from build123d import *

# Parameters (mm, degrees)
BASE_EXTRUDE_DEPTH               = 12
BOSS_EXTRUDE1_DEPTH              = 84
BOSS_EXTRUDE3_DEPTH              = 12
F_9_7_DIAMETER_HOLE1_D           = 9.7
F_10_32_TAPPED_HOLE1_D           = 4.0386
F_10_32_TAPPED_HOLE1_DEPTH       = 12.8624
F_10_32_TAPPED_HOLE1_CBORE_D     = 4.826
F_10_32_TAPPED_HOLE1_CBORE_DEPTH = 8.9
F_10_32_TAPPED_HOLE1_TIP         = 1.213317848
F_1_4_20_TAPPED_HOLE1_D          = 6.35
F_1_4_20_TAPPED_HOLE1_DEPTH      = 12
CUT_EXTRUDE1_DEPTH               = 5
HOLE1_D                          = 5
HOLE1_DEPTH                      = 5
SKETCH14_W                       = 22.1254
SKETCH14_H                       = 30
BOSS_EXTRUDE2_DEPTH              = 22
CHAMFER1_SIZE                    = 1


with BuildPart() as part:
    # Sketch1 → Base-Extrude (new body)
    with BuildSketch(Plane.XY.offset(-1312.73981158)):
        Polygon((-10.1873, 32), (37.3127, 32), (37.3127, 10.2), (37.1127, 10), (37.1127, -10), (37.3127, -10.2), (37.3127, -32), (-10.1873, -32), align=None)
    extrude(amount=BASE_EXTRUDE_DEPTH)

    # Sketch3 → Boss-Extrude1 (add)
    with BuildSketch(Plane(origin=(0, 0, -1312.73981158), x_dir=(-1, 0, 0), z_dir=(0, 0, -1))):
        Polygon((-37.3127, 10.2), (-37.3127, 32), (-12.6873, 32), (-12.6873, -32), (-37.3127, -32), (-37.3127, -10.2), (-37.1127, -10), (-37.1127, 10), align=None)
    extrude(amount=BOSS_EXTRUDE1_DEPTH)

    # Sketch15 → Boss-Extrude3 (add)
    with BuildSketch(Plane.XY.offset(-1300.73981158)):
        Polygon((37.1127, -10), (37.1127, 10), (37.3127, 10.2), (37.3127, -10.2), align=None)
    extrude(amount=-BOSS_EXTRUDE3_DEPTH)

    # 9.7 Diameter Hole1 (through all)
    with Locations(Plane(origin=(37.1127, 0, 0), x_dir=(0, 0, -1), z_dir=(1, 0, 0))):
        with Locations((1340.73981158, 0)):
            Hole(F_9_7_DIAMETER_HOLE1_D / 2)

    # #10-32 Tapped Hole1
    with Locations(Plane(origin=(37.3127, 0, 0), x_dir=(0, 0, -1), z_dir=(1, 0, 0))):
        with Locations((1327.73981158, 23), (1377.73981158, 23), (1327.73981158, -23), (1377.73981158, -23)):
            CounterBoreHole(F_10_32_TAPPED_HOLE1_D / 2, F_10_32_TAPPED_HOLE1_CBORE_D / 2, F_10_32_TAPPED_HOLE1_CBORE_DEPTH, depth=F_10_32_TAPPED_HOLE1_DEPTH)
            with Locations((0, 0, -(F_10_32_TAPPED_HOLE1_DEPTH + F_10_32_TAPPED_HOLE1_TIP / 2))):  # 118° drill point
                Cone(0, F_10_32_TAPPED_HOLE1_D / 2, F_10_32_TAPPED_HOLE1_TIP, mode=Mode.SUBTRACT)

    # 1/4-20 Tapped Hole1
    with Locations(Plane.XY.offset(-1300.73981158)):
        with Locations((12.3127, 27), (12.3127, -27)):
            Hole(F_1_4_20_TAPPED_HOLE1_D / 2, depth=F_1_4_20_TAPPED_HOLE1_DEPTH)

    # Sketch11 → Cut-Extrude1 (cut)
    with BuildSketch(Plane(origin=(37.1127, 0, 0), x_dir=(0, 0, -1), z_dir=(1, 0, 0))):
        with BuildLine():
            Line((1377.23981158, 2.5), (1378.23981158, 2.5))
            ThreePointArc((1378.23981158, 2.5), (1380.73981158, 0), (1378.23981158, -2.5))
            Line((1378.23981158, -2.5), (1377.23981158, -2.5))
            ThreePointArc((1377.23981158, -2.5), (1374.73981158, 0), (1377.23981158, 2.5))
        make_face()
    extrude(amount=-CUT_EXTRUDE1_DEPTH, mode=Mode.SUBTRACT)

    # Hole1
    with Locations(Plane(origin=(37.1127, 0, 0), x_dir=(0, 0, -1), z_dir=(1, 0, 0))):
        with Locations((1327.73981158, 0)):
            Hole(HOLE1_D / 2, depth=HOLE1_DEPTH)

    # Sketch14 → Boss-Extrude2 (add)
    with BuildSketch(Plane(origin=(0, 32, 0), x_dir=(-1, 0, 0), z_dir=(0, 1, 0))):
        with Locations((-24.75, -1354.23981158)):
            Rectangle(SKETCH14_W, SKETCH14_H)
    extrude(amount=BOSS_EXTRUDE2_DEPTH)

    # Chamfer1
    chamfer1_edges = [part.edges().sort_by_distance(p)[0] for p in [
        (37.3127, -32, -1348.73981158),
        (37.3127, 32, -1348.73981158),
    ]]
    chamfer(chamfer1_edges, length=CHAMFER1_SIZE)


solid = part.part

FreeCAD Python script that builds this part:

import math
import FreeCAD as App
import Part
import Sketcher
from FreeCAD import Vector
Q = App.Units.Quantity


def edges_at(feature, points):
    """Names of the edges that pass closest to the given points."""
    edges = feature.Shape.Edges
    near = lambda p: min(range(len(edges)), key=lambda i: edges[i].distToShape(Part.Vertex(*p))[0])
    return sorted({f"Edge{near(p) + 1}" for p in points})

doc = App.newDocument("Part")
params = doc.addObject("Spreadsheet::Sheet", "Params")
for row, (alias, value) in enumerate([
    ("sketch1_height", "64 mm"),
    ("sketch1_height2", "20 mm"),
    ("sketch1_width", "47.5 mm"),
    ("sketch1_height3", "21.8 mm"),
    ("pad1_length", "12 mm"),
    ("sketch2_height", "20 mm"),
    ("sketch2_height2", "64 mm"),
    ("sketch2_height3", "21.8 mm"),
    ("pad2_length", "84 mm"),
    ("sketch3_height", "20 mm"),
    ("sketch3_height2", "20.4 mm"),
    ("pad3_length", "12 mm"),
    ("sketch4_diameter", "9.7 mm"),
    ("hole_diameter", "9.7 mm"),
    ("hole2_diameter", "4.0386 mm"),
    ("hole2_depth", "12.8624 mm"),
    ("hole2_cbore_diameter", "4.826 mm"),
    ("hole2_cbore_depth", "8.9 mm"),
    ("sketch6_diameter", "6.35 mm"),
    ("hole3_diameter", "6.35 mm"),
    ("hole3_depth", "12 mm"),
    ("sketch7_radius", "2.5 mm"),
    ("sketch7_height", "1 mm"),
    ("pocket1_length", "5 mm"),
    ("sketch8_diameter", "5 mm"),
    ("hole4_diameter", "5 mm"),
    ("hole4_depth", "5 mm"),
    ("sketch9_height", "30 mm"),
    ("pad4_length", "22 mm"),
    ("chamfer_size", "1 mm"),
], start=1):
    params.set(f"A{row}", alias)
    params.set(f"B{row}", "=" + value)
    params.setAlias(f"B{row}", alias)

body = doc.addObject("PartDesign::Body", "Body")

sketch1 = doc.addObject("Sketcher::SketchObject", "Sketch")
body.addObject(sketch1)
sketch1.AttachmentSupport = (doc.XY_Plane, [""])
sketch1.MapMode = "FlatFace"
sketch1.AttachmentOffset = App.Placement(Vector(0, 0, -1312.739812), App.Rotation())
sketch1.addGeometry(Part.LineSegment(Vector(37.31, 32, 0), Vector(-10.19, 32, 0)), False)
sketch1.addGeometry(Part.LineSegment(Vector(-10.19, 32, 0), Vector(-10.19, -32, 0)), False)
sketch1.addGeometry(Part.LineSegment(Vector(-10.19, -32, 0), Vector(37.31, -32, 0)), False)
sketch1.addGeometry(Part.LineSegment(Vector(37.31, -32, 0), Vector(37.31, -10.2, 0)), False)
sketch1.addGeometry(Part.LineSegment(Vector(37.31, -10.2, 0), Vector(37.11, -10, 0)), False)
sketch1.addGeometry(Part.LineSegment(Vector(37.11, -10, 0), Vector(37.11, 10, 0)), False)
sketch1.addGeometry(Part.LineSegment(Vector(37.11, 10, 0), Vector(37.31, 10.2, 0)), False)
sketch1.addGeometry(Part.LineSegment(Vector(37.31, 10.2, 0), Vector(37.31, 32, 0)), False)
sketch1.addConstraint(Sketcher.Constraint("Coincident", 0, 2, 1, 1))
sketch1.addConstraint(Sketcher.Constraint("Coincident", 1, 2, 2, 1))
sketch1.addConstraint(Sketcher.Constraint("Coincident", 2, 2, 3, 1))
sketch1.addConstraint(Sketcher.Constraint("Coincident", 3, 2, 4, 1))
sketch1.addConstraint(Sketcher.Constraint("Coincident", 4, 2, 5, 1))
sketch1.addConstraint(Sketcher.Constraint("Coincident", 5, 2, 6, 1))
sketch1.addConstraint(Sketcher.Constraint("Coincident", 6, 2, 7, 1))
sketch1.addConstraint(Sketcher.Constraint("Coincident", 7, 2, 0, 1))
sketch1.addConstraint(Sketcher.Constraint("Horizontal", 0))
sketch1.addConstraint(Sketcher.Constraint("Vertical", 1))
sketch1.addConstraint(Sketcher.Constraint("Horizontal", 2))
sketch1.addConstraint(Sketcher.Constraint("Vertical", 3))
sketch1.addConstraint(Sketcher.Constraint("Vertical", 5))
sketch1.addConstraint(Sketcher.Constraint("Vertical", 7))
sketch1.addConstraint(Sketcher.Constraint("Symmetric", 3, 2, 6, 2, -1))
sketch1.addConstraint(Sketcher.Constraint("Perpendicular", 4, 6))
sketch1.addConstraint(Sketcher.Constraint("Equal", 3, 7))
sketch1.addConstraint(Sketcher.Constraint("Equal", 4, 6))
sketch1.addConstraint(Sketcher.Constraint("DistanceY", 1, 2, 1, 1, Q("64 mm")))
sketch1.addConstraint(Sketcher.Constraint("DistanceY", 5, 1, 5, 2, Q("20 mm")))
sketch1.addConstraint(Sketcher.Constraint("DistanceX", 0, 2, 0, 1, Q("47.5 mm")))
sketch1.addConstraint(Sketcher.Constraint("DistanceY", 3, 1, 3, 2, Q("21.8 mm")))
sketch1.addConstraint(Sketcher.Constraint("DistanceX", 0, 2, -1, 1, Q("10.1873 mm")))
sketch1.setExpression("Constraints[18]", "Params.sketch1_height")
sketch1.setExpression("Constraints[19]", "Params.sketch1_height2")
sketch1.setExpression("Constraints[20]", "Params.sketch1_width")
sketch1.setExpression("Constraints[21]", "Params.sketch1_height3")
pad1 = doc.addObject("PartDesign::Pad", "Pad")
body.addObject(pad1)
pad1.Profile = sketch1
pad1.setExpression("Length", "Params.pad1_length")

sketch2 = doc.addObject("Sketcher::SketchObject", "Sketch001")
body.addObject(sketch2)
sketch2.AttachmentSupport = (doc.XY_Plane, [""])
sketch2.MapMode = "FlatFace"
sketch2.AttachmentOffset = App.Placement(Vector(0, 0, -1312.739812), App.Rotation())
sketch2.addGeometry(Part.LineSegment(Vector(37.31, 32, 0), Vector(37.31, 10.2, 0)), False)
sketch2.addGeometry(Part.LineSegment(Vector(37.31, 10.2, 0), Vector(37.11, 10, 0)), False)
sketch2.addGeometry(Part.LineSegment(Vector(37.11, 10, 0), Vector(37.11, -10, 0)), False)
sketch2.addGeometry(Part.LineSegment(Vector(37.11, -10, 0), Vector(37.31, -10.2, 0)), False)
sketch2.addGeometry(Part.LineSegment(Vector(37.31, -10.2, 0), Vector(37.31, -32, 0)), False)
sketch2.addGeometry(Part.LineSegment(Vector(37.31, -32, 0), Vector(12.69, -32, 0)), False)
sketch2.addGeometry(Part.LineSegment(Vector(12.69, -32, 0), Vector(12.69, 32, 0)), False)
sketch2.addGeometry(Part.LineSegment(Vector(12.69, 32, 0), Vector(37.31, 32, 0)), False)
sketch2.addConstraint(Sketcher.Constraint("Coincident", 0, 2, 1, 1))
sketch2.addConstraint(Sketcher.Constraint("Coincident", 1, 2, 2, 1))
sketch2.addConstraint(Sketcher.Constraint("Coincident", 2, 2, 3, 1))
sketch2.addConstraint(Sketcher.Constraint("Coincident", 3, 2, 4, 1))
sketch2.addConstraint(Sketcher.Constraint("Coincident", 4, 2, 5, 1))
sketch2.addConstraint(Sketcher.Constraint("Coincident", 5, 2, 6, 1))
sketch2.addConstraint(Sketcher.Constraint("Coincident", 6, 2, 7, 1))
sketch2.addConstraint(Sketcher.Constraint("Coincident", 7, 2, 0, 1))
sketch2.addConstraint(Sketcher.Constraint("Vertical", 0))
sketch2.addConstraint(Sketcher.Constraint("Vertical", 2))
sketch2.addConstraint(Sketcher.Constraint("Vertical", 4))
sketch2.addConstraint(Sketcher.Constraint("Horizontal", 5))
sketch2.addConstraint(Sketcher.Constraint("Vertical", 6))
sketch2.addConstraint(Sketcher.Constraint("Horizontal", 7))
sketch2.addConstraint(Sketcher.Constraint("Symmetric", 0, 2, 3, 2, -1))
sketch2.addConstraint(Sketcher.Constraint("Perpendicular", 1, 3))
sketch2.addConstraint(Sketcher.Constraint("Equal", 0, 4))
sketch2.addConstraint(Sketcher.Constraint("Equal", 1, 3))
sketch2.addConstraint(Sketcher.Constraint("DistanceY", 2, 2, 2, 1, Q("20 mm")))
sketch2.addConstraint(Sketcher.Constraint("DistanceY", 6, 1, 6, 2, Q("64 mm")))
sketch2.addConstraint(Sketcher.Constraint("DistanceY", 0, 2, 0, 1, Q("21.8 mm")))
sketch2.addConstraint(Sketcher.Constraint("DistanceX", 5, 2, 5, 1, Q("24.6254 mm")))
sketch2.addConstraint(Sketcher.Constraint("DistanceX", -1, 1, 0, 2, Q("37.3127 mm")))
sketch2.setExpression("Constraints[18]", "Params.sketch2_height")
sketch2.setExpression("Constraints[19]", "Params.sketch2_height2")
sketch2.setExpression("Constraints[20]", "Params.sketch2_height3")
pad2 = doc.addObject("PartDesign::Pad", "Pad001")
body.addObject(pad2)
pad2.Profile = sketch2
pad2.setExpression("Length", "Params.pad2_length")
pad2.Reversed = True

sketch3 = doc.addObject("Sketcher::SketchObject", "Sketch002")
body.addObject(sketch3)
sketch3.AttachmentSupport = (doc.XY_Plane, [""])
sketch3.MapMode = "FlatFace"
sketch3.AttachmentOffset = App.Placement(Vector(0, 0, -1300.739812), App.Rotation())
sketch3.addGeometry(Part.LineSegment(Vector(37.11, 10, 0), Vector(37.11, -10, 0)), False)
sketch3.addGeometry(Part.LineSegment(Vector(37.11, -10, 0), Vector(37.31, -10.2, 0)), False)
sketch3.addGeometry(Part.LineSegment(Vector(37.31, -10.2, 0), Vector(37.31, 10.2, 0)), False)
sketch3.addGeometry(Part.LineSegment(Vector(37.31, 10.2, 0), Vector(37.11, 10, 0)), False)
sketch3.addConstraint(Sketcher.Constraint("Coincident", 0, 2, 1, 1))
sketch3.addConstraint(Sketcher.Constraint("Coincident", 1, 2, 2, 1))
sketch3.addConstraint(Sketcher.Constraint("Coincident", 2, 2, 3, 1))
sketch3.addConstraint(Sketcher.Constraint("Coincident", 3, 2, 0, 1))
sketch3.addConstraint(Sketcher.Constraint("Vertical", 0))
sketch3.addConstraint(Sketcher.Constraint("Vertical", 2))
sketch3.addConstraint(Sketcher.Constraint("Perpendicular", 1, 3))
sketch3.addConstraint(Sketcher.Constraint("Equal", 1, 3))
sketch3.addConstraint(Sketcher.Constraint("DistanceY", 0, 2, 0, 1, Q("20 mm")))
sketch3.addConstraint(Sketcher.Constraint("DistanceY", 2, 1, 2, 2, Q("20.4 mm")))
sketch3.addConstraint(Sketcher.Constraint("DistanceY", 0, 2, -1, 1, Q("10 mm")))
sketch3.addConstraint(Sketcher.Constraint("DistanceX", -1, 1, 0, 2, Q("37.1127 mm")))
sketch3.setExpression("Constraints[8]", "Params.sketch3_height")
sketch3.setExpression("Constraints[9]", "Params.sketch3_height2")
pad3 = doc.addObject("PartDesign::Pad", "Pad002")
body.addObject(pad3)
pad3.Profile = sketch3
pad3.setExpression("Length", "Params.pad3_length")
pad3.Reversed = True

sketch4 = doc.addObject("Sketcher::SketchObject", "Sketch003")
body.addObject(sketch4)
sketch4.AttachmentSupport = (doc.YZ_Plane, [""])
sketch4.MapMode = "FlatFace"
sketch4.AttachmentOffset = App.Placement(Vector(0, 0, 37.1127), App.Rotation())
sketch4.addGeometry(Part.Circle(Vector(0, -1340.7, 0), Vector(0, 0, 1), 4.8), False)
sketch4.addConstraint(Sketcher.Constraint("PointOnObject", 0, 3, -2))
sketch4.addConstraint(Sketcher.Constraint("Diameter", 0, Q("9.7 mm")))
sketch4.addConstraint(Sketcher.Constraint("DistanceY", 0, 3, -1, 1, Q("1340.739812 mm")))
sketch4.setExpression("Constraints[1]", "Params.sketch4_diameter")
doc.recompute()
hole = doc.addObject("PartDesign::Hole", "Hole")
body.addObject(hole)
hole.Profile = sketch4
hole.ThreadType = "None"
hole.setExpression("Diameter", "Params.hole_diameter")
hole.DepthType = "ThroughAll"

sketch5 = doc.addObject("Sketcher::SketchObject", "Sketch004")
body.addObject(sketch5)
sketch5.AttachmentSupport = (doc.YZ_Plane, [""])
sketch5.MapMode = "FlatFace"
sketch5.AttachmentOffset = App.Placement(Vector(0, 0, 37.3127), App.Rotation())
sketch5.addGeometry(Part.Circle(Vector(23, -1327.7, 0), Vector(0, 0, 1), 2), False)
sketch5.addGeometry(Part.Circle(Vector(23, -1377.7, 0), Vector(0, 0, 1), 2), False)
sketch5.addGeometry(Part.Circle(Vector(-23, -1327.7, 0), Vector(0, 0, 1), 2), False)
sketch5.addGeometry(Part.Circle(Vector(-23, -1377.7, 0), Vector(0, 0, 1), 2), False)
sketch5.addConstraint(Sketcher.Constraint("Equal", 0, 1))
sketch5.addConstraint(Sketcher.Constraint("Equal", 1, 2))
sketch5.addConstraint(Sketcher.Constraint("Equal", 2, 3))
sketch5.addConstraint(Sketcher.Constraint("Symmetric", 0, 3, 2, 3, -2))
sketch5.addConstraint(Sketcher.Constraint("Symmetric", 1, 3, 3, 3, -2))
sketch5.addConstraint(Sketcher.Constraint("Vertical", 0, 3, 1, 3))
sketch5.addConstraint(Sketcher.Constraint("DistanceX", -1, 1, 0, 3, Q("23 mm")))
sketch5.addConstraint(Sketcher.Constraint("DistanceY", 1, 3, 0, 3, Q("50 mm")))
sketch5.addConstraint(Sketcher.Constraint("Diameter", 0, Q("4.0386 mm")))
sketch5.addConstraint(Sketcher.Constraint("DistanceY", 0, 3, -1, 1, Q("1327.739812 mm")))
doc.recompute()
hole2 = doc.addObject("PartDesign::Hole", "Hole001")
body.addObject(hole2)
hole2.Profile = sketch5
hole2.ThreadType = "None"
hole2.setExpression("Diameter", "Params.hole2_diameter")
hole2.DepthType = "Dimension"
hole2.setExpression("Depth", "Params.hole2_depth")
hole2.DrillPoint = "Angled"
hole2.DrillPointAngle = 118
hole2.HoleCutType = "Counterbore"
hole2.setExpression("HoleCutDiameter", "Params.hole2_cbore_diameter")
hole2.setExpression("HoleCutDepth", "Params.hole2_cbore_depth")

sketch6 = doc.addObject("Sketcher::SketchObject", "Sketch005")
body.addObject(sketch6)
sketch6.AttachmentSupport = (doc.XY_Plane, [""])
sketch6.MapMode = "FlatFace"
sketch6.AttachmentOffset = App.Placement(Vector(0, 0, -1300.739812), App.Rotation())
sketch6.addGeometry(Part.Circle(Vector(12.3, 27, 0), Vector(0, 0, 1), 3.2), False)
sketch6.addGeometry(Part.Circle(Vector(12.3, -27, 0), Vector(0, 0, 1), 3.2), False)
sketch6.addConstraint(Sketcher.Constraint("Equal", 0, 1))
sketch6.addConstraint(Sketcher.Constraint("Symmetric", 0, 3, 1, 3, -1))
sketch6.addConstraint(Sketcher.Constraint("Diameter", 0, Q("6.35 mm")))
sketch6.addConstraint(Sketcher.Constraint("DistanceY", -1, 1, 0, 3, Q("27 mm")))
sketch6.addConstraint(Sketcher.Constraint("DistanceX", -1, 1, 0, 3, Q("12.3127 mm")))
sketch6.setExpression("Constraints[2]", "Params.sketch6_diameter")
doc.recompute()
hole3 = doc.addObject("PartDesign::Hole", "Hole002")
body.addObject(hole3)
hole3.Profile = sketch6
hole3.ThreadType = "None"
hole3.setExpression("Diameter", "Params.hole3_diameter")
hole3.DepthType = "Dimension"
hole3.setExpression("Depth", "Params.hole3_depth")
hole3.DrillPoint = "Flat"

sketch7 = doc.addObject("Sketcher::SketchObject", "Sketch006")
body.addObject(sketch7)
sketch7.AttachmentSupport = (doc.YZ_Plane, [""])
sketch7.MapMode = "FlatFace"
sketch7.AttachmentOffset = App.Placement(Vector(0, 0, 37.1127), App.Rotation())
sketch7.addGeometry(Part.LineSegment(Vector(2.5, -1378.2, 0), Vector(2.5, -1377.2, 0)), False)
sketch7.addGeometry(Part.ArcOfCircle(Part.Circle(Vector(0, -1377.2, 0), Vector(0, 0, 1), 2.5), math.radians(0), math.radians(180)), False)
sketch7.addGeometry(Part.LineSegment(Vector(-2.5, -1377.2, 0), Vector(-2.5, -1378.2, 0)), False)
sketch7.addGeometry(Part.ArcOfCircle(Part.Circle(Vector(0, -1378.2, 0), Vector(0, 0, 1), 2.5), math.radians(180), math.radians(360)), False)
sketch7.addConstraint(Sketcher.Constraint("Tangent", 0, 2, 1, 1))
sketch7.addConstraint(Sketcher.Constraint("Tangent", 1, 2, 2, 1))
sketch7.addConstraint(Sketcher.Constraint("Tangent", 2, 2, 3, 1))
sketch7.addConstraint(Sketcher.Constraint("Tangent", 3, 2, 0, 1))
sketch7.addConstraint(Sketcher.Constraint("Vertical", 0))
sketch7.addConstraint(Sketcher.Constraint("Vertical", 2))
sketch7.addConstraint(Sketcher.Constraint("PointOnObject", 1, 3, -2))
sketch7.addConstraint(Sketcher.Constraint("Radius", 1, Q("2.5 mm")))
sketch7.addConstraint(Sketcher.Constraint("DistanceY", 0, 1, 0, 2, Q("1 mm")))
sketch7.addConstraint(Sketcher.Constraint("DistanceY", 1, 3, -1, 1, Q("1377.239812 mm")))
sketch7.setExpression("Constraints[7]", "Params.sketch7_radius")
sketch7.setExpression("Constraints[8]", "Params.sketch7_height")
pocket1 = doc.addObject("PartDesign::Pocket", "Pocket")
body.addObject(pocket1)
pocket1.Profile = sketch7
pocket1.setExpression("Length", "Params.pocket1_length")

sketch8 = doc.addObject("Sketcher::SketchObject", "Sketch007")
body.addObject(sketch8)
sketch8.AttachmentSupport = (doc.YZ_Plane, [""])
sketch8.MapMode = "FlatFace"
sketch8.AttachmentOffset = App.Placement(Vector(0, 0, 37.1127), App.Rotation())
sketch8.addGeometry(Part.Circle(Vector(0, -1327.7, 0), Vector(0, 0, 1), 2.5), False)
sketch8.addConstraint(Sketcher.Constraint("PointOnObject", 0, 3, -2))
sketch8.addConstraint(Sketcher.Constraint("Diameter", 0, Q("5 mm")))
sketch8.addConstraint(Sketcher.Constraint("DistanceY", 0, 3, -1, 1, Q("1327.739812 mm")))
sketch8.setExpression("Constraints[1]", "Params.sketch8_diameter")
doc.recompute()
hole4 = doc.addObject("PartDesign::Hole", "Hole003")
body.addObject(hole4)
hole4.Profile = sketch8
hole4.ThreadType = "None"
hole4.setExpression("Diameter", "Params.hole4_diameter")
hole4.DepthType = "Dimension"
hole4.setExpression("Depth", "Params.hole4_depth")
hole4.DrillPoint = "Flat"

sketch9 = doc.addObject("Sketcher::SketchObject", "Sketch008")
body.addObject(sketch9)
sketch9.AttachmentSupport = (doc.XZ_Plane, [""])
sketch9.MapMode = "FlatFace"
sketch9.AttachmentOffset = App.Placement(Vector(0, 0, -32), App.Rotation())
sketch9.addGeometry(Part.LineSegment(Vector(36, -1339, 0), Vector(36, -1369, 0)), False)
sketch9.addGeometry(Part.LineSegment(Vector(36, -1369, 0), Vector(14, -1369, 0)), False)
sketch9.addGeometry(Part.LineSegment(Vector(14, -1369, 0), Vector(14, -1339, 0)), False)
sketch9.addGeometry(Part.LineSegment(Vector(14, -1339, 0), Vector(36, -1339, 0)), False)
sketch9.addConstraint(Sketcher.Constraint("Coincident", 0, 2, 1, 1))
sketch9.addConstraint(Sketcher.Constraint("Coincident", 1, 2, 2, 1))
sketch9.addConstraint(Sketcher.Constraint("Coincident", 2, 2, 3, 1))
sketch9.addConstraint(Sketcher.Constraint("Coincident", 3, 2, 0, 1))
sketch9.addConstraint(Sketcher.Constraint("Vertical", 0))
sketch9.addConstraint(Sketcher.Constraint("Horizontal", 1))
sketch9.addConstraint(Sketcher.Constraint("Vertical", 2))
sketch9.addConstraint(Sketcher.Constraint("Horizontal", 3))
sketch9.addConstraint(Sketcher.Constraint("DistanceY", 0, 2, 0, 1, Q("30 mm")))
sketch9.addConstraint(Sketcher.Constraint("DistanceX", 1, 2, 1, 1, Q("22.1254 mm")))
sketch9.addConstraint(Sketcher.Constraint("DistanceX", -1, 1, 0, 2, Q("35.8127 mm")))
sketch9.addConstraint(Sketcher.Constraint("DistanceY", 0, 2, -1, 1, Q("1369.239812 mm")))
sketch9.setExpression("Constraints[8]", "Params.sketch9_height")
pad4 = doc.addObject("PartDesign::Pad", "Pad003")
body.addObject(pad4)
pad4.Profile = sketch9
pad4.setExpression("Length", "Params.pad4_length")
pad4.Reversed = True
doc.recompute()

chamfer = doc.addObject("PartDesign::Chamfer", "Chamfer")
body.addObject(chamfer)
chamfer.Base = (pad4, edges_at(pad4, [(37.313, -32, -1348.74), (37.313, 32, -1348.74)]))
chamfer.setExpression("Size", "Params.chamfer_size")

doc.recompute()
